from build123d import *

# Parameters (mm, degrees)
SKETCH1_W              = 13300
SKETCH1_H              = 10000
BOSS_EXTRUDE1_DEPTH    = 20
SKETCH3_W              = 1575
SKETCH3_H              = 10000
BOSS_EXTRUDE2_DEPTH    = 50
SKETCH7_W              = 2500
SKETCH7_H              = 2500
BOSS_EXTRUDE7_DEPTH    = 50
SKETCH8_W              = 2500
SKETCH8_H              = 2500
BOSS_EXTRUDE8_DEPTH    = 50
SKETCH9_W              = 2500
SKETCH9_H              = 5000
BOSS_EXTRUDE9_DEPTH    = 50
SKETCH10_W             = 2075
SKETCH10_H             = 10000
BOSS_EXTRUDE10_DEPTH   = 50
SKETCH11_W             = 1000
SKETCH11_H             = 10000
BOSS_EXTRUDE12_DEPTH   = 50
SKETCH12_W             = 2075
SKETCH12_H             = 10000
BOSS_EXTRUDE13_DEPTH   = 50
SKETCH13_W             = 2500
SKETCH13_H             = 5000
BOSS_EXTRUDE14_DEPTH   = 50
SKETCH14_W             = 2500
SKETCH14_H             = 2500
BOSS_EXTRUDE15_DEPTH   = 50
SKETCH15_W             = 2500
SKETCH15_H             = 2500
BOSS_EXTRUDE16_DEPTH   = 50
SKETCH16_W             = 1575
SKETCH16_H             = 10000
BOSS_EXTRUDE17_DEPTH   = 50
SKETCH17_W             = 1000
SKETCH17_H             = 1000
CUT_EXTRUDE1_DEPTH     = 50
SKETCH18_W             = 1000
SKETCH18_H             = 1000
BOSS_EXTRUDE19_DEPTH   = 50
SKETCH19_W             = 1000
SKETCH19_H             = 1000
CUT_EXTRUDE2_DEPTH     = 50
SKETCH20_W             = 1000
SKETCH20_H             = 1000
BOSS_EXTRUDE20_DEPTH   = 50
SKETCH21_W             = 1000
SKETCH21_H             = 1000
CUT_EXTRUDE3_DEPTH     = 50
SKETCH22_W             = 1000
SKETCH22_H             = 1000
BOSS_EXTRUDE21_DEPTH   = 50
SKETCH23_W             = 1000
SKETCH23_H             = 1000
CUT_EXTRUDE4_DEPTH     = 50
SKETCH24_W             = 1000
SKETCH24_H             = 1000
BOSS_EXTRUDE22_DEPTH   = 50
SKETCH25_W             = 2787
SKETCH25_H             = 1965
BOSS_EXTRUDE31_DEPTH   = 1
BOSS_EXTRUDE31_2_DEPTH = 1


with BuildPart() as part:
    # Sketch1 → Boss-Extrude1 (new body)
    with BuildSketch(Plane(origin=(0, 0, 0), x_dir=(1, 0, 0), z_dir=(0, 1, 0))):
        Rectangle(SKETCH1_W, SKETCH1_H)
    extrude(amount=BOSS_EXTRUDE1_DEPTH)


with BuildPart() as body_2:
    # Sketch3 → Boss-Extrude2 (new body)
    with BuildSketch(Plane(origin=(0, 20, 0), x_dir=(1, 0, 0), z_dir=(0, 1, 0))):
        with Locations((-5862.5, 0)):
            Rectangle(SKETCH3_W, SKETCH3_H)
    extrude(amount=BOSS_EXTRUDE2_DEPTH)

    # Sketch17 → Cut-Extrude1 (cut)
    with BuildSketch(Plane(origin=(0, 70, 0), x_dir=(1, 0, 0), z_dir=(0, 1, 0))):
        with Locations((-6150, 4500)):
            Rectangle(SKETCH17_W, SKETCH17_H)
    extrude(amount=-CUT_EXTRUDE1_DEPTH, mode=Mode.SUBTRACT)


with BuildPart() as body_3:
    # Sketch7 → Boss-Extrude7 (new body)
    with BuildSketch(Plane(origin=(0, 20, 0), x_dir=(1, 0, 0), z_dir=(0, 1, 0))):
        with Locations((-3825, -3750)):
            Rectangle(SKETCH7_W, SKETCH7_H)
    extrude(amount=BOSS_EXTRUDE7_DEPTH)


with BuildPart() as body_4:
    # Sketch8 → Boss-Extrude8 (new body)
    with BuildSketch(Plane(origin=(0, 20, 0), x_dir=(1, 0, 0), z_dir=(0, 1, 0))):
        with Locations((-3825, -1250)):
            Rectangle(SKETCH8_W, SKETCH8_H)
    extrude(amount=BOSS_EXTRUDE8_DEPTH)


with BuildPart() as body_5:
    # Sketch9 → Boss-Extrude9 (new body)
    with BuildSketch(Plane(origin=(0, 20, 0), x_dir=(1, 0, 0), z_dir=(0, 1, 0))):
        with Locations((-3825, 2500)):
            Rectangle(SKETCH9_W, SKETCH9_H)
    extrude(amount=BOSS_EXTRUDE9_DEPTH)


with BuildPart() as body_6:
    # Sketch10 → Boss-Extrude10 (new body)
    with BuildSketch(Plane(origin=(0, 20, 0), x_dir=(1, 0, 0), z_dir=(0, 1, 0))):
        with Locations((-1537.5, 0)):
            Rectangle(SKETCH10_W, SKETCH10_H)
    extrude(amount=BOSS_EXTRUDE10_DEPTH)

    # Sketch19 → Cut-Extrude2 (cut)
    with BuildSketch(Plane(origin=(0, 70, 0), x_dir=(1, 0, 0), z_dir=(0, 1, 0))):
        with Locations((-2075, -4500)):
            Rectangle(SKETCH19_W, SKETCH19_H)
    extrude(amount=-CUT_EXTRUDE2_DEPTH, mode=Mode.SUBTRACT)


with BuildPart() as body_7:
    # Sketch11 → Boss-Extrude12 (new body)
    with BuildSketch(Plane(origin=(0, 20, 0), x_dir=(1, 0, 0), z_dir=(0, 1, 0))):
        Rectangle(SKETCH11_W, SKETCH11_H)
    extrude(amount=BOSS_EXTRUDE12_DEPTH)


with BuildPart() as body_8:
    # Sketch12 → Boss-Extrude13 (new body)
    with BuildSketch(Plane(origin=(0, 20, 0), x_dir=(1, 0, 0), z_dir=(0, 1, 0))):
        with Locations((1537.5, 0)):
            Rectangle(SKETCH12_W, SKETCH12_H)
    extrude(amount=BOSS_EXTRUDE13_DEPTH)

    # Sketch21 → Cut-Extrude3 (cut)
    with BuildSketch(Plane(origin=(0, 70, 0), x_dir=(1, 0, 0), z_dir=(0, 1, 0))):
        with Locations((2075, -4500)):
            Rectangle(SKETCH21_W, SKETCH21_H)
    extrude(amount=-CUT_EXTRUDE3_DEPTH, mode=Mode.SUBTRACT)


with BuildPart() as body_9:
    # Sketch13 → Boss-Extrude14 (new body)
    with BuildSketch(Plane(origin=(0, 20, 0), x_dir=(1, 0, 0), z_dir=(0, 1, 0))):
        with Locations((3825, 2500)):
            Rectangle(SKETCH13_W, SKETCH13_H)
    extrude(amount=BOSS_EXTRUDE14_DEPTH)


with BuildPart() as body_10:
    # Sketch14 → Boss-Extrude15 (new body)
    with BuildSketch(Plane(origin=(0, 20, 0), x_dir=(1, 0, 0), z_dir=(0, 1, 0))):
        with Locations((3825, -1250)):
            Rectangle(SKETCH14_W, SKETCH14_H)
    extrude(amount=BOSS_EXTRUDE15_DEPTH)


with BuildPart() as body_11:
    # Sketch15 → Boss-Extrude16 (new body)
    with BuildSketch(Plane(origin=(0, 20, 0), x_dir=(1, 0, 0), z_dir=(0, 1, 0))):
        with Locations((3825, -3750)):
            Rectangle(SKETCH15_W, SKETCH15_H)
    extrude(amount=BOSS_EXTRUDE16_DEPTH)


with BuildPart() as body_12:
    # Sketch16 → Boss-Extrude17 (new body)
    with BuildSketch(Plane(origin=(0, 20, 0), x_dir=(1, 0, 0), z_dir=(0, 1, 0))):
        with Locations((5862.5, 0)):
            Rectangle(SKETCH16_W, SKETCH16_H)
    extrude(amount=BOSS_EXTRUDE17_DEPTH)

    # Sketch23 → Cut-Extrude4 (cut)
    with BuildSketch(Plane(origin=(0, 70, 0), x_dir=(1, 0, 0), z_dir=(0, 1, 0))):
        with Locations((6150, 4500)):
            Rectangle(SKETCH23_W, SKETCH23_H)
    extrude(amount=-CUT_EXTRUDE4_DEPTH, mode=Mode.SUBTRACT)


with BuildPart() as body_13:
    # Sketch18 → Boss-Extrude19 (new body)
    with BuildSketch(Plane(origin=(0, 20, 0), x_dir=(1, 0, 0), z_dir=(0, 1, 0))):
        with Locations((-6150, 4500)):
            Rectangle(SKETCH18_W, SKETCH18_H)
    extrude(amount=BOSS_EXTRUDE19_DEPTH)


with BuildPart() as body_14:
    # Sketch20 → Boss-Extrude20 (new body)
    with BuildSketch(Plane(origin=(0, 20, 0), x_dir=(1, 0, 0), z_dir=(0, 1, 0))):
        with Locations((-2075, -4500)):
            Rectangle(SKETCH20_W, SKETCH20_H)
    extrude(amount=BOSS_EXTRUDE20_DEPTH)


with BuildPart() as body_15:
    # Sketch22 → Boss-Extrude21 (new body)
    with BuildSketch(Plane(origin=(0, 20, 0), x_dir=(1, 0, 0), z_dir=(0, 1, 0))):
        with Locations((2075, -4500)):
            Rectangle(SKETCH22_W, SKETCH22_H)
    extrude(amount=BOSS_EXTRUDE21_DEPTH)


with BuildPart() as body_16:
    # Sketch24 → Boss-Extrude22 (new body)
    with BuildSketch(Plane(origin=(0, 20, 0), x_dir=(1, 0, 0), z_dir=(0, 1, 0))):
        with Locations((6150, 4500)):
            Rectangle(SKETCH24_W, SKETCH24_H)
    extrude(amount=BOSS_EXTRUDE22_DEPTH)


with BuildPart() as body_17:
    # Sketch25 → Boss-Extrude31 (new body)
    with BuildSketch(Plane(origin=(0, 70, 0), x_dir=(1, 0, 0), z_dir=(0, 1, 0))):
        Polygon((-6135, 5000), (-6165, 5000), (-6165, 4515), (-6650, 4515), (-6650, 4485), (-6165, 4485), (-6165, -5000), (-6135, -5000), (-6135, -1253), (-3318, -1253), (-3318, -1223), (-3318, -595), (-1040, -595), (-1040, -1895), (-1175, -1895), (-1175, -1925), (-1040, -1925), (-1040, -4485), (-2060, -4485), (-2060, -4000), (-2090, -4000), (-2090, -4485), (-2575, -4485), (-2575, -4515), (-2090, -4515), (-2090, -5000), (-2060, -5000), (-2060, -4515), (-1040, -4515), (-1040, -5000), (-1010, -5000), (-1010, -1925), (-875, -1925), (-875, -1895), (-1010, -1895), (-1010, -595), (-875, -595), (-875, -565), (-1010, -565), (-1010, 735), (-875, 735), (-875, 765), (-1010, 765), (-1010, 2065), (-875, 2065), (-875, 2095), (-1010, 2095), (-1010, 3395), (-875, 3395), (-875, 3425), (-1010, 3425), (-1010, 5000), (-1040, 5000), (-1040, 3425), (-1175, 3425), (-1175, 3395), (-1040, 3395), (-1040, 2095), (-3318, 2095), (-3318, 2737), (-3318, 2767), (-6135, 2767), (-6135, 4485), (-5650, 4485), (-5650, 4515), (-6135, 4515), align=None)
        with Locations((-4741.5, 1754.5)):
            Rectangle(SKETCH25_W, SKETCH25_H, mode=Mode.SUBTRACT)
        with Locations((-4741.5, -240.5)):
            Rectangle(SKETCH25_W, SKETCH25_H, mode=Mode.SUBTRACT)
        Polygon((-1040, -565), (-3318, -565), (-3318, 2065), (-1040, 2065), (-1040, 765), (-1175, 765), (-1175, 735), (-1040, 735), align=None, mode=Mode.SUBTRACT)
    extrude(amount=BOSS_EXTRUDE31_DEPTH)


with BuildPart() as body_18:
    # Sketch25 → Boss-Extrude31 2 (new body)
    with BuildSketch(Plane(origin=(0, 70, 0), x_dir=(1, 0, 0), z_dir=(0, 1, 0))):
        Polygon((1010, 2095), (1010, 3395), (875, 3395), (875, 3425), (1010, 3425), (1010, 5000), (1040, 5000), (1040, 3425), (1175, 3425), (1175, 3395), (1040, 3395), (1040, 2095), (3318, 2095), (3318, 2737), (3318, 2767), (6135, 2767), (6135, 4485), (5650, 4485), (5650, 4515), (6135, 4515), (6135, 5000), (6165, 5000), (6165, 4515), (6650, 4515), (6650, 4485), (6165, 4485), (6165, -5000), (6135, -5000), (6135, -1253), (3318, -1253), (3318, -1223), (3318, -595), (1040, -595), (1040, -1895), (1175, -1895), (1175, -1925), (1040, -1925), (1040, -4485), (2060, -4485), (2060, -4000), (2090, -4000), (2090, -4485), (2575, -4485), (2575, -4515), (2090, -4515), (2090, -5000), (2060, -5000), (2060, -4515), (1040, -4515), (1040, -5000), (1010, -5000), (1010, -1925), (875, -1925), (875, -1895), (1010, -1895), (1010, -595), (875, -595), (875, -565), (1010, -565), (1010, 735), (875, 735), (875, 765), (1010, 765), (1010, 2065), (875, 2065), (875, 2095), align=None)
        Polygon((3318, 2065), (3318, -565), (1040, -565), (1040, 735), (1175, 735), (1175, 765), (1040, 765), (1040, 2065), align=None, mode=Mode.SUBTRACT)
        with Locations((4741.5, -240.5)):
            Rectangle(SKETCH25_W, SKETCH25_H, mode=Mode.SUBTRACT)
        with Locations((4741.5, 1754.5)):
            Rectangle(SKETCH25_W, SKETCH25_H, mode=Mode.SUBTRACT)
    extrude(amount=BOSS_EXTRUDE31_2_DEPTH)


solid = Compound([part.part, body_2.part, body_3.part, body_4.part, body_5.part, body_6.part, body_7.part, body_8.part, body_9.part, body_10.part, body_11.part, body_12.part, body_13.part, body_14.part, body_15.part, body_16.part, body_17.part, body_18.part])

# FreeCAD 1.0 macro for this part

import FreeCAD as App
import Part
import Sketcher

V = App.Vector
Q = App.Units.Quantity


def add_polygon(sketch, points):
    """Adds a closed chain of lines whose ends are joined by coincident constraints."""
    first, n = sketch.GeometryCount, len(points)
    for a, b in zip(points, points[1:] + points[:1]):
        sketch.addGeometry(Part.LineSegment(App.Vector(*a, 0), App.Vector(*b, 0)), False)
    for i in range(n):
        sketch.addConstraint(Sketcher.Constraint("Coincident", first + i, 2, first + (i + 1) % n, 1))

doc = App.newDocument("Part")
body = doc.addObject("PartDesign::Body", "Body")

# Sketch on XZ plane
sketch1 = body.newObject("Sketcher::SketchObject", "Sketch")
sketch1.AttachmentSupport = (doc.getObject("XZ_Plane"), [""])
sketch1.MapMode = "FlatFace"
add_polygon(sketch1, [(-6650, -5000), (-6650, 5000), (6650, 5000), (6650, -5000)])  # lines 0-3
sketch1.addConstraint(Sketcher.Constraint("Vertical", 0))
sketch1.addConstraint(Sketcher.Constraint("Horizontal", 1))
sketch1.addConstraint(Sketcher.Constraint("Vertical", 2))
sketch1.addConstraint(Sketcher.Constraint("Horizontal", 3))
sketch1.addConstraint(Sketcher.Constraint("Symmetric", 0, 2, 2, 2, -1, 1))
sketch1.addConstraint(Sketcher.Constraint("DistanceX", 1, 1, 1, 2, Q("13300 mm")))
sketch1.addConstraint(Sketcher.Constraint("DistanceY", 0, 1, 0, 2, Q("10000 mm")))
pad1 = body.newObject("PartDesign::Pad", "Pad")
pad1.Profile = sketch1
pad1.Length = 20
pad1.Reversed = True
body2 = doc.addObject("PartDesign::Body", "Body001")

# Sketch on XZ plane
sketch2 = body2.newObject("Sketcher::SketchObject", "Sketch001")
sketch2.AttachmentSupport = (doc.getObject("XZ_Plane001"), [""])
sketch2.MapMode = "FlatFace"
sketch2.AttachmentOffset = App.Placement(V(0, 0, -20), App.Rotation())
add_polygon(sketch2, [(-6650, -5000), (-6650, 5000), (-5075, 5000), (-5075, -5000)])  # lines 0-3
sketch2.addConstraint(Sketcher.Constraint("Vertical", 0))
sketch2.addConstraint(Sketcher.Constraint("Horizontal", 1))
sketch2.addConstraint(Sketcher.Constraint("Vertical", 2))
sketch2.addConstraint(Sketcher.Constraint("Horizontal", 3))
sketch2.addConstraint(Sketcher.Constraint("DistanceX", 1, 1, 1, 2, Q("1575 mm")))
sketch2.addConstraint(Sketcher.Constraint("DistanceY", 0, 1, 0, 2, Q("10000 mm")))
sketch2.addConstraint(Sketcher.Constraint("DistanceX", 0, 2, -1, 1, Q("6650 mm")))
sketch2.addConstraint(Sketcher.Constraint("DistanceY", -1, 1, 0, 2, Q("5000 mm")))
pad2 = body2.newObject("PartDesign::Pad", "Pad001")
pad2.Profile = sketch2
pad2.Length = 50
pad2.Reversed = True

# Sketch on XZ plane
sketch3 = body2.newObject("Sketcher::SketchObject", "Sketch002")
sketch3.AttachmentSupport = (doc.getObject("XZ_Plane001"), [""])
sketch3.MapMode = "FlatFace"
sketch3.AttachmentOffset = App.Placement(V(0, 0, -70), App.Rotation())
add_polygon(sketch3, [(-6650, -5000), (-6650, -4000), (-5650, -4000), (-5650, -5000)])  # lines 0-3
sketch3.addConstraint(Sketcher.Constraint("Vertical", 0))
sketch3.addConstraint(Sketcher.Constraint("Horizontal", 1))
sketch3.addConstraint(Sketcher.Constraint("Vertical", 2))
sketch3.addConstraint(Sketcher.Constraint("Horizontal", 3))
sketch3.addConstraint(Sketcher.Constraint("Equal", 3, 0))
sketch3.addConstraint(Sketcher.Constraint("DistanceX", 1, 1, 1, 2, Q("1000 mm")))
sketch3.addConstraint(Sketcher.Constraint("DistanceX", 0, 2, -1, 1, Q("6650 mm")))
sketch3.addConstraint(Sketcher.Constraint("DistanceY", 0, 2, -1, 1, Q("4000 mm")))
pocket1 = body2.newObject("PartDesign::Pocket", "Pocket")
pocket1.Profile = sketch3
pocket1.Length = 50
pocket1.Reversed = True
body3 = doc.addObject("PartDesign::Body", "Body002")

# Sketch on XZ plane
sketch4 = body3.newObject("Sketcher::SketchObject", "Sketch003")
sketch4.AttachmentSupport = (doc.getObject("XZ_Plane002"), [""])
sketch4.MapMode = "FlatFace"
sketch4.AttachmentOffset = App.Placement(V(0, 0, -20), App.Rotation())
add_polygon(sketch4, [(-5075, 2500), (-5075, 5000), (-2575, 5000), (-2575, 2500)])  # lines 0-3
sketch4.addConstraint(Sketcher.Constraint("Vertical", 0))
sketch4.addConstraint(Sketcher.Constraint("Horizontal", 1))
sketch4.addConstraint(Sketcher.Constraint("Vertical", 2))
sketch4.addConstraint(Sketcher.Constraint("Horizontal", 3))
sketch4.addConstraint(Sketcher.Constraint("Equal", 3, 0))
sketch4.addConstraint(Sketcher.Constraint("DistanceX", 1, 1, 1, 2, Q("2500 mm")))
sketch4.addConstraint(Sketcher.Constraint("DistanceX", 0, 2, -1, 1, Q("5075 mm")))
sketch4.addConstraint(Sketcher.Constraint("DistanceY", -1, 1, 0, 2, Q("5000 mm")))
pad3 = body3.newObject("PartDesign::Pad", "Pad002")
pad3.Profile = sketch4
pad3.Length = 50
pad3.Reversed = True
body4 = doc.addObject("PartDesign::Body", "Body003")

# Sketch on XZ plane
sketch5 = body4.newObject("Sketcher::SketchObject", "Sketch004")
sketch5.AttachmentSupport = (doc.getObject("XZ_Plane003"), [""])
sketch5.MapMode = "FlatFace"
sketch5.AttachmentOffset = App.Placement(V(0, 0, -20), App.Rotation())
add_polygon(sketch5, [(-5075, 0), (-5075, 2500), (-2575, 2500), (-2575, 0)])  # lines 0-3
sketch5.addConstraint(Sketcher.Constraint("Vertical", 0))
sketch5.addConstraint(Sketcher.Constraint("Horizontal", 1))
sketch5.addConstraint(Sketcher.Constraint("Vertical", 2))
sketch5.addConstraint(Sketcher.Constraint("Horizontal", 3))
sketch5.addConstraint(Sketcher.Constraint("PointOnObject", 2, 2, -1))
sketch5.addConstraint(Sketcher.Constraint("Equal", 3, 0))
sketch5.addConstraint(Sketcher.Constraint("DistanceX", 1, 1, 1, 2, Q("2500 mm")))
sketch5.addConstraint(Sketcher.Constraint("DistanceX", 0, 2, -1, 1, Q("5075 mm")))
pad4 = body4.newObject("PartDesign::Pad", "Pad003")
pad4.Profile = sketch5
pad4.Length = 50
pad4.Reversed = True
body5 = doc.addObject("PartDesign::Body", "Body004")

# Sketch on XZ plane
sketch6 = body5.newObject("Sketcher::SketchObject", "Sketch005")
sketch6.AttachmentSupport = (doc.getObject("XZ_Plane004"), [""])
sketch6.MapMode = "FlatFace"
sketch6.AttachmentOffset = App.Placement(V(0, 0, -20), App.Rotation())
add_polygon(sketch6, [(-5075, -5000), (-5075, 0), (-2575, 0), (-2575, -5000)])  # lines 0-3
sketch6.addConstraint(Sketcher.Constraint("Vertical", 0))
sketch6.addConstraint(Sketcher.Constraint("Horizontal", 1))
sketch6.addConstraint(Sketcher.Constraint("Vertical", 2))
sketch6.addConstraint(Sketcher.Constraint("Horizontal", 3))
sketch6.addConstraint(Sketcher.Constraint("PointOnObject", 0, 2, -1))
sketch6.addConstraint(Sketcher.Constraint("DistanceX", 1, 1, 1, 2, Q("2500 mm")))
sketch6.addConstraint(Sketcher.Constraint("DistanceY", 0, 1, 0, 2, Q("5000 mm")))
sketch6.addConstraint(Sketcher.Constraint("DistanceX", 0, 2, -1, 1, Q("5075 mm")))
pad5 = body5.newObject("PartDesign::Pad", "Pad004")
pad5.Profile = sketch6
pad5.Length = 50
pad5.Reversed = True
body6 = doc.addObject("PartDesign::Body", "Body005")

# Sketch on XZ plane
sketch7 = body6.newObject("Sketcher::SketchObject", "Sketch006")
sketch7.AttachmentSupport = (doc.getObject("XZ_Plane005"), [""])
sketch7.MapMode = "FlatFace"
sketch7.AttachmentOffset = App.Placement(V(0, 0, -20), App.Rotation())
add_polygon(sketch7, [(-2575, -5000), (-2575, 5000), (-500, 5000), (-500, -5000)])  # lines 0-3
sketch7.addConstraint(Sketcher.Constraint("Vertical", 0))
sketch7.addConstraint(Sketcher.Constraint("Horizontal", 1))
sketch7.addConstraint(Sketcher.Constraint("Vertical", 2))
sketch7.addConstraint(Sketcher.Constraint("Horizontal", 3))
sketch7.addConstraint(Sketcher.Constraint("DistanceX", 1, 1, 1, 2, Q("2075 mm")))
sketch7.addConstraint(Sketcher.Constraint("DistanceY", 0, 1, 0, 2, Q("10000 mm")))
sketch7.addConstraint(Sketcher.Constraint("DistanceX", 0, 2, -1, 1, Q("2575 mm")))
sketch7.addConstraint(Sketcher.Constraint("DistanceY", -1, 1, 0, 2, Q("5000 mm")))
pad6 = body6.newObject("PartDesign::Pad", "Pad005")
pad6.Profile = sketch7
pad6.Length = 50
pad6.Reversed = True

# Sketch on XZ plane
sketch8 = body6.newObject("Sketcher::SketchObject", "Sketch007")
sketch8.AttachmentSupport = (doc.getObject("XZ_Plane005"), [""])
sketch8.MapMode = "FlatFace"
sketch8.AttachmentOffset = App.Placement(V(0, 0, -70), App.Rotation())
add_polygon(sketch8, [(-2575, 4000), (-2575, 5000), (-1575, 5000), (-1575, 4000)])  # lines 0-3
sketch8.addConstraint(Sketcher.Constraint("Vertical", 0))
sketch8.addConstraint(Sketcher.Constraint("Horizontal", 1))
sketch8.addConstraint(Sketcher.Constraint("Vertical", 2))
sketch8.addConstraint(Sketcher.Constraint("Horizontal", 3))
sketch8.addConstraint(Sketcher.Constraint("Equal", 3, 0))
sketch8.addConstraint(Sketcher.Constraint("DistanceX", 1, 1, 1, 2, Q("1000 mm")))
sketch8.addConstraint(Sketcher.Constraint("DistanceX", 0, 2, -1, 1, Q("2575 mm")))
sketch8.addConstraint(Sketcher.Constraint("DistanceY", -1, 1, 0, 2, Q("5000 mm")))
pocket2 = body6.newObject("PartDesign::Pocket", "Pocket001")
pocket2.Profile = sketch8
pocket2.Length = 50
pocket2.Reversed = True
body7 = doc.addObject("PartDesign::Body", "Body006")

# Sketch on XZ plane
sketch9 = body7.newObject("Sketcher::SketchObject", "Sketch008")
sketch9.AttachmentSupport = (doc.getObject("XZ_Plane006"), [""])
sketch9.MapMode = "FlatFace"
sketch9.AttachmentOffset = App.Placement(V(0, 0, -20), App.Rotation())
add_polygon(sketch9, [(-500, -5000), (-500, 5000), (500, 5000), (500, -5000)])  # lines 0-3
sketch9.addConstraint(Sketcher.Constraint("Vertical", 0))
sketch9.addConstraint(Sketcher.Constraint("Horizontal", 1))
sketch9.addConstraint(Sketcher.Constraint("Vertical", 2))
sketch9.addConstraint(Sketcher.Constraint("Horizontal", 3))
sketch9.addConstraint(Sketcher.Constraint("Symmetric", 0, 2, 2, 2, -1, 1))
sketch9.addConstraint(Sketcher.Constraint("DistanceX", 1, 1, 1, 2, Q("1000 mm")))
sketch9.addConstraint(Sketcher.Constraint("DistanceY", 0, 1, 0, 2, Q("10000 mm")))
pad7 = body7.newObject("PartDesign::Pad", "Pad006")
pad7.Profile = sketch9
pad7.Length = 50
pad7.Reversed = True
body8 = doc.addObject("PartDesign::Body", "Body007")

# Sketch on XZ plane
sketch10 = body8.newObject("Sketcher::SketchObject", "Sketch009")
sketch10.AttachmentSupport = (doc.getObject("XZ_Plane007"), [""])
sketch10.MapMode = "FlatFace"
sketch10.AttachmentOffset = App.Placement(V(0, 0, -20), App.Rotation())
add_polygon(sketch10, [(500, -5000), (500, 5000), (2575, 5000), (2575, -5000)])  # lines 0-3
sketch10.addConstraint(Sketcher.Constraint("Vertical", 0))
sketch10.addConstraint(Sketcher.Constraint("Horizontal", 1))
sketch10.addConstraint(Sketcher.Constraint("Vertical", 2))
sketch10.addConstraint(Sketcher.Constraint("Horizontal", 3))
sketch10.addConstraint(Sketcher.Constraint("DistanceX", 1, 1, 1, 2, Q("2075 mm")))
sketch10.addConstraint(Sketcher.Constraint("DistanceY", 0, 1, 0, 2, Q("10000 mm")))
sketch10.addConstraint(Sketcher.Constraint("DistanceX", -1, 1, 0, 2, Q("500 mm")))
sketch10.addConstraint(Sketcher.Constraint("DistanceY", -1, 1, 0, 2, Q("5000 mm")))
pad8 = body8.newObject("PartDesign::Pad", "Pad007")
pad8.Profile = sketch10
pad8.Length = 50
pad8.Reversed = True

# Sketch on XZ plane
sketch11 = body8.newObject("Sketcher::SketchObject", "Sketch010")
sketch11.AttachmentSupport = (doc.getObject("XZ_Plane007"), [""])
sketch11.MapMode = "FlatFace"
sketch11.AttachmentOffset = App.Placement(V(0, 0, -70), App.Rotation())
add_polygon(sketch11, [(1575, 4000), (1575, 5000), (2575, 5000), (2575, 4000)])  # lines 0-3
sketch11.addConstraint(Sketcher.Constraint("Vertical", 0))
sketch11.addConstraint(Sketcher.Constraint("Horizontal", 1))
sketch11.addConstraint(Sketcher.Constraint("Vertical", 2))
sketch11.addConstraint(Sketcher.Constraint("Horizontal", 3))
sketch11.addConstraint(Sketcher.Constraint("Equal", 3, 0))
sketch11.addConstraint(Sketcher.Constraint("DistanceX", 1, 1, 1, 2, Q("1000 mm")))
sketch11.addConstraint(Sketcher.Constraint("DistanceX", -1, 1, 0, 2, Q("1575 mm")))
sketch11.addConstraint(Sketcher.Constraint("DistanceY", -1, 1, 0, 2, Q("5000 mm")))
pocket3 = body8.newObject("PartDesign::Pocket", "Pocket002")
pocket3.Profile = sketch11
pocket3.Length = 50
pocket3.Reversed = True
body9 = doc.addObject("PartDesign::Body", "Body008")

# Sketch on XZ plane
sketch12 = body9.newObject("Sketcher::SketchObject", "Sketch011")
sketch12.AttachmentSupport = (doc.getObject("XZ_Plane008"), [""])
sketch12.MapMode = "FlatFace"
sketch12.AttachmentOffset = App.Placement(V(0, 0, -20), App.Rotation())
add_polygon(sketch12, [(2575, -5000), (2575, 0), (5075, 0), (5075, -5000)])  # lines 0-3
sketch12.addConstraint(Sketcher.Constraint("Vertical", 0))
sketch12.addConstraint(Sketcher.Constraint("Horizontal", 1))
sketch12.addConstraint(Sketcher.Constraint("Vertical", 2))
sketch12.addConstraint(Sketcher.Constraint("Horizontal", 3))
sketch12.addConstraint(Sketcher.Constraint("PointOnObject", 0, 2, -1))
sketch12.addConstraint(Sketcher.Constraint("DistanceX", 1, 1, 1, 2, Q("2500 mm")))
sketch12.addConstraint(Sketcher.Constraint("DistanceY", 0, 1, 0, 2, Q("5000 mm")))
sketch12.addConstraint(Sketcher.Constraint("DistanceX", -1, 1, 0, 2, Q("2575 mm")))
pad9 = body9.newObject("PartDesign::Pad", "Pad008")
pad9.Profile = sketch12
pad9.Length = 50
pad9.Reversed = True
body10 = doc.addObject("PartDesign::Body", "Body009")

# Sketch on XZ plane
sketch13 = body10.newObject("Sketcher::SketchObject", "Sketch012")
sketch13.AttachmentSupport = (doc.getObject("XZ_Plane009"), [""])
sketch13.MapMode = "FlatFace"
sketch13.AttachmentOffset = App.Placement(V(0, 0, -20), App.Rotation())
add_polygon(sketch13, [(2575, 0), (2575, 2500), (5075, 2500), (5075, 0)])  # lines 0-3
sketch13.addConstraint(Sketcher.Constraint("Vertical", 0))
sketch13.addConstraint(Sketcher.Constraint("Horizontal", 1))
sketch13.addConstraint(Sketcher.Constraint("Vertical", 2))
sketch13.addConstraint(Sketcher.Constraint("Horizontal", 3))
sketch13.addConstraint(Sketcher.Constraint("PointOnObject", 2, 2, -1))
sketch13.addConstraint(Sketcher.Constraint("Equal", 3, 0))
sketch13.addConstraint(Sketcher.Constraint("DistanceX", 1, 1, 1, 2, Q("2500 mm")))
sketch13.addConstraint(Sketcher.Constraint("DistanceX", -1, 1, 0, 2, Q("2575 mm")))
pad10 = body10.newObject("PartDesign::Pad", "Pad009")
pad10.Profile = sketch13
pad10.Length = 50
pad10.Reversed = True
body11 = doc.addObject("PartDesign::Body", "Body010")

# Sketch on XZ plane
sketch14 = body11.newObject("Sketcher::SketchObject", "Sketch013")
sketch14.AttachmentSupport = (doc.getObject("XZ_Plane010"), [""])
sketch14.MapMode = "FlatFace"
sketch14.AttachmentOffset = App.Placement(V(0, 0, -20), App.Rotation())
add_polygon(sketch14, [(2575, 2500), (2575, 5000), (5075, 5000), (5075, 2500)])  # lines 0-3
sketch14.addConstraint(Sketcher.Constraint("Vertical", 0))
sketch14.addConstraint(Sketcher.Constraint("Horizontal", 1))
sketch14.addConstraint(Sketcher.Constraint("Vertical", 2))
sketch14.addConstraint(Sketcher.Constraint("Horizontal", 3))
sketch14.addConstraint(Sketcher.Constraint("Equal", 3, 0))
sketch14.addConstraint(Sketcher.Constraint("DistanceX", 1, 1, 1, 2, Q("2500 mm")))
sketch14.addConstraint(Sketcher.Constraint("DistanceX", -1, 1, 0, 2, Q("2575 mm")))
sketch14.addConstraint(Sketcher.Constraint("DistanceY", -1, 1, 0, 2, Q("5000 mm")))
pad11 = body11.newObject("PartDesign::Pad", "Pad010")
pad11.Profile = sketch14
pad11.Length = 50
pad11.Reversed = True
body12 = doc.addObject("PartDesign::Body", "Body011")

# Sketch on XZ plane
sketch15 = body12.newObject("Sketcher::SketchObject", "Sketch014")
sketch15.AttachmentSupport = (doc.getObject("XZ_Plane011"), [""])
sketch15.MapMode = "FlatFace"
sketch15.AttachmentOffset = App.Placement(V(0, 0, -20), App.Rotation())
add_polygon(sketch15, [(5075, -5000), (5075, 5000), (6650, 5000), (6650, -5000)])  # lines 0-3
sketch15.addConstraint(Sketcher.Constraint("Vertical", 0))
sketch15.addConstraint(Sketcher.Constraint("Horizontal", 1))
sketch15.addConstraint(Sketcher.Constraint("Vertical", 2))
sketch15.addConstraint(Sketcher.Constraint("Horizontal", 3))
sketch15.addConstraint(Sketcher.Constraint("DistanceX", 1, 1, 1, 2, Q("1575 mm")))
sketch15.addConstraint(Sketcher.Constraint("DistanceY", 0, 1, 0, 2, Q("10000 mm")))
sketch15.addConstraint(Sketcher.Constraint("DistanceX", -1, 1, 0, 2, Q("5075 mm")))
sketch15.addConstraint(Sketcher.Constraint("DistanceY", -1, 1, 0, 2, Q("5000 mm")))
pad12 = body12.newObject("PartDesign::Pad", "Pad011")
pad12.Profile = sketch15
pad12.Length = 50
pad12.Reversed = True

# Sketch on XZ plane
sketch16 = body12.newObject("Sketcher::SketchObject", "Sketch015")
sketch16.AttachmentSupport = (doc.getObject("XZ_Plane011"), [""])
sketch16.MapMode = "FlatFace"
sketch16.AttachmentOffset = App.Placement(V(0, 0, -70), App.Rotation())
add_polygon(sketch16, [(5650, -5000), (5650, -4000), (6650, -4000), (6650, -5000)])  # lines 0-3
sketch16.addConstraint(Sketcher.Constraint("Vertical", 0))
sketch16.addConstraint(Sketcher.Constraint("Horizontal", 1))
sketch16.addConstraint(Sketcher.Constraint("Vertical", 2))
sketch16.addConstraint(Sketcher.Constraint("Horizontal", 3))
sketch16.addConstraint(Sketcher.Constraint("Equal", 3, 0))
sketch16.addConstraint(Sketcher.Constraint("DistanceX", 1, 1, 1, 2, Q("1000 mm")))
sketch16.addConstraint(Sketcher.Constraint("DistanceX", -1, 1, 0, 2, Q("5650 mm")))
sketch16.addConstraint(Sketcher.Constraint("DistanceY", 0, 2, -1, 1, Q("4000 mm")))
pocket4 = body12.newObject("PartDesign::Pocket", "Pocket003")
pocket4.Profile = sketch16
pocket4.Length = 50
pocket4.Reversed = True
body13 = doc.addObject("PartDesign::Body", "Body012")

# Sketch on XZ plane
sketch17 = body13.newObject("Sketcher::SketchObject", "Sketch016")
sketch17.AttachmentSupport = (doc.getObject("XZ_Plane012"), [""])
sketch17.MapMode = "FlatFace"
sketch17.AttachmentOffset = App.Placement(V(0, 0, -20), App.Rotation())
add_polygon(sketch17, [(-6650, -5000), (-6650, -4000), (-5650, -4000), (-5650, -5000)])  # lines 0-3
sketch17.addConstraint(Sketcher.Constraint("Vertical", 0))
sketch17.addConstraint(Sketcher.Constraint("Horizontal", 1))
sketch17.addConstraint(Sketcher.Constraint("Vertical", 2))
sketch17.addConstraint(Sketcher.Constraint("Horizontal", 3))
sketch17.addConstraint(Sketcher.Constraint("Equal", 3, 0))
sketch17.addConstraint(Sketcher.Constraint("DistanceX", 1, 1, 1, 2, Q("1000 mm")))
sketch17.addConstraint(Sketcher.Constraint("DistanceX", 0, 2, -1, 1, Q("6650 mm")))
sketch17.addConstraint(Sketcher.Constraint("DistanceY", 0, 2, -1, 1, Q("4000 mm")))
pad13 = body13.newObject("PartDesign::Pad", "Pad012")
pad13.Profile = sketch17
pad13.Length = 50
pad13.Reversed = True
body14 = doc.addObject("PartDesign::Body", "Body013")

# Sketch on XZ plane
sketch18 = body14.newObject("Sketcher::SketchObject", "Sketch017")
sketch18.AttachmentSupport = (doc.getObject("XZ_Plane013"), [""])
sketch18.MapMode = "FlatFace"
sketch18.AttachmentOffset = App.Placement(V(0, 0, -20), App.Rotation())
add_polygon(sketch18, [(-2575, 4000), (-2575, 5000), (-1575, 5000), (-1575, 4000)])  # lines 0-3
sketch18.addConstraint(Sketcher.Constraint("Vertical", 0))
sketch18.addConstraint(Sketcher.Constraint("Horizontal", 1))
sketch18.addConstraint(Sketcher.Constraint("Vertical", 2))
sketch18.addConstraint(Sketcher.Constraint("Horizontal", 3))
sketch18.addConstraint(Sketcher.Constraint("Equal", 3, 0))
sketch18.addConstraint(Sketcher.Constraint("DistanceX", 1, 1, 1, 2, Q("1000 mm")))
sketch18.addConstraint(Sketcher.Constraint("DistanceX", 0, 2, -1, 1, Q("2575 mm")))
sketch18.addConstraint(Sketcher.Constraint("DistanceY", -1, 1, 0, 2, Q("5000 mm")))
pad14 = body14.newObject("PartDesign::Pad", "Pad013")
pad14.Profile = sketch18
pad14.Length = 50
pad14.Reversed = True
body15 = doc.addObject("PartDesign::Body", "Body014")

# Sketch on XZ plane
sketch19 = body15.newObject("Sketcher::SketchObject", "Sketch018")
sketch19.AttachmentSupport = (doc.getObject("XZ_Plane014"), [""])
sketch19.MapMode = "FlatFace"
sketch19.AttachmentOffset = App.Placement(V(0, 0, -20), App.Rotation())
add_polygon(sketch19, [(1575, 4000), (1575, 5000), (2575, 5000), (2575, 4000)])  # lines 0-3
sketch19.addConstraint(Sketcher.Constraint("Vertical", 0))
sketch19.addConstraint(Sketcher.Constraint("Horizontal", 1))
sketch19.addConstraint(Sketcher.Constraint("Vertical", 2))
sketch19.addConstraint(Sketcher.Constraint("Horizontal", 3))
sketch19.addConstraint(Sketcher.Constraint("Equal", 3, 0))
sketch19.addConstraint(Sketcher.Constraint("DistanceX", 1, 1, 1, 2, Q("1000 mm")))
sketch19.addConstraint(Sketcher.Constraint("DistanceX", -1, 1, 0, 2, Q("1575 mm")))
sketch19.addConstraint(Sketcher.Constraint("DistanceY", -1, 1, 0, 2, Q("5000 mm")))
pad15 = body15.newObject("PartDesign::Pad", "Pad014")
pad15.Profile = sketch19
pad15.Length = 50
pad15.Reversed = True
body16 = doc.addObject("PartDesign::Body", "Body015")

# Sketch on XZ plane
sketch20 = body16.newObject("Sketcher::SketchObject", "Sketch019")
sketch20.AttachmentSupport = (doc.getObject("XZ_Plane015"), [""])
sketch20.MapMode = "FlatFace"
sketch20.AttachmentOffset = App.Placement(V(0, 0, -20), App.Rotation())
add_polygon(sketch20, [(5650, -5000), (5650, -4000), (6650, -4000), (6650, -5000)])  # lines 0-3
sketch20.addConstraint(Sketcher.Constraint("Vertical", 0))
sketch20.addConstraint(Sketcher.Constraint("Horizontal", 1))
sketch20.addConstraint(Sketcher.Constraint("Vertical", 2))
sketch20.addConstraint(Sketcher.Constraint("Horizontal", 3))
sketch20.addConstraint(Sketcher.Constraint("Equal", 3, 0))
sketch20.addConstraint(Sketcher.Constraint("DistanceX", 1, 1, 1, 2, Q("1000 mm")))
sketch20.addConstraint(Sketcher.Constraint("DistanceX", -1, 1, 0, 2, Q("5650 mm")))
sketch20.addConstraint(Sketcher.Constraint("DistanceY", 0, 2, -1, 1, Q("4000 mm")))
pad16 = body16.newObject("PartDesign::Pad", "Pad015")
pad16.Profile = sketch20
pad16.Length = 50
pad16.Reversed = True
body17 = doc.addObject("PartDesign::Body", "Body016")

# Sketch on XZ plane
sketch21 = body17.newObject("Sketcher::SketchObject", "Sketch020")
sketch21.AttachmentSupport = (doc.getObject("XZ_Plane016"), [""])
sketch21.MapMode = "FlatFace"
sketch21.AttachmentOffset = App.Placement(V(0, 0, -70), App.Rotation())
add_polygon(sketch21, [(-6135, -5000), (-6165, -5000), (-6165, -4515), (-6650, -4515), (-6650, -4485), (-6165, -4485), (-6165, 5000), (-6135, 5000), (-6135, 1253), (-3318, 1253), (-3318, 595), (-1040, 595), (-1040, 1895), (-1175, 1895), (-1175, 1925), (-1040, 1925), (-1040, 4485), (-2060, 4485), (-2060, 4000), (-2090, 4000), (-2090, 4485), (-2575, 4485), (-2575, 4515), (-2090, 4515), (-2090, 5000), (-2060, 5000), (-2060, 4515), (-1040, 4515), (-1040, 5000), (-1010, 5000), (-1010, 1925), (-875, 1925), (-875, 1895), (-1010, 1895), (-1010, 595), (-875, 595), (-875, 565), (-1010, 565), (-1010, -735), (-875, -735), (-875, -765), (-1010, -765), (-1010, -2065), (-875, -2065), (-875, -2095), (-1010, -2095), (-1010, -3395), (-875, -3395), (-875, -3425), (-1010, -3425), (-1010, -5000), (-1040, -5000), (-1040, -3425), (-1175, -3425), (-1175, -3395), (-1040, -3395), (-1040, -2095), (-3318, -2095), (-3318, -2767), (-6135, -2767), (-6135, -4485), (-5650, -4485), (-5650, -4515), (-6135, -4515)])  # lines 0-63
add_polygon(sketch21, [(-3348, 1223), (-6135, 1223), (-6135, -742), (-3348, -742)])  # lines 64-67
add_polygon(sketch21, [(-1040, -735), (-1040, 565), (-3318, 565), (-3318, -2065), (-1040, -2065), (-1040, -765), (-1175, -765), (-1175, -735)])  # lines 68-75
add_polygon(sketch21, [(-3348, -772), (-6135, -772), (-6135, -2737), (-3348, -2737)])  # lines 76-79
sketch21.addConstraint(Sketcher.Constraint("Horizontal", 0))
sketch21.addConstraint(Sketcher.Constraint("Vertical", 1))
sketch21.addConstraint(Sketcher.Constraint("Horizontal", 2))
sketch21.addConstraint(Sketcher.Constraint("Vertical", 3))
sketch21.addConstraint(Sketcher.Constraint("Horizontal", 4))
sketch21.addConstraint(Sketcher.Constraint("Vertical", 5))
sketch21.addConstraint(Sketcher.Constraint("Horizontal", 6))
sketch21.addConstraint(Sketcher.Constraint("Vertical", 7))
sketch21.addConstraint(Sketcher.Constraint("Horizontal", 8))
sketch21.addConstraint(Sketcher.Constraint("Vertical", 9))
sketch21.addConstraint(Sketcher.Constraint("Horizontal", 10))
sketch21.addConstraint(Sketcher.Constraint("Vertical", 11))
sketch21.addConstraint(Sketcher.Constraint("Horizontal", 12))
sketch21.addConstraint(Sketcher.Constraint("Vertical", 13))
sketch21.addConstraint(Sketcher.Constraint("Horizontal", 14))
sketch21.addConstraint(Sketcher.Constraint("Vertical", 15))
sketch21.addConstraint(Sketcher.Constraint("Horizontal", 16))
sketch21.addConstraint(Sketcher.Constraint("Vertical", 17))
sketch21.addConstraint(Sketcher.Constraint("Horizontal", 18))
sketch21.addConstraint(Sketcher.Constraint("Vertical", 19))
sketch21.addConstraint(Sketcher.Constraint("Horizontal", 20))
sketch21.addConstraint(Sketcher.Constraint("Vertical", 21))
sketch21.addConstraint(Sketcher.Constraint("Horizontal", 22))
sketch21.addConstraint(Sketcher.Constraint("Vertical", 23))
sketch21.addConstraint(Sketcher.Constraint("Horizontal", 24))
sketch21.addConstraint(Sketcher.Constraint("Vertical", 25))
sketch21.addConstraint(Sketcher.Constraint("Horizontal", 26))
sketch21.addConstraint(Sketcher.Constraint("Vertical", 27))
sketch21.addConstraint(Sketcher.Constraint("Horizontal", 28))
sketch21.addConstraint(Sketcher.Constraint("Vertical", 29))
sketch21.addConstraint(Sketcher.Constraint("Horizontal", 30))
sketch21.addConstraint(Sketcher.Constraint("Vertical", 31))
sketch21.addConstraint(Sketcher.Constraint("Horizontal", 32))
sketch21.addConstraint(Sketcher.Constraint("Vertical", 33))
sketch21.addConstraint(Sketcher.Constraint("Horizontal", 34))
sketch21.addConstraint(Sketcher.Constraint("Vertical", 35))
sketch21.addConstraint(Sketcher.Constraint("Horizontal", 36))
sketch21.addConstraint(Sketcher.Constraint("Vertical", 37))
sketch21.addConstraint(Sketcher.Constraint("Horizontal", 38))
sketch21.addConstraint(Sketcher.Constraint("Vertical", 39))
sketch21.addConstraint(Sketcher.Constraint("Horizontal", 40))
sketch21.addConstraint(Sketcher.Constraint("Vertical", 41))
sketch21.addConstraint(Sketcher.Constraint("Horizontal", 42))
sketch21.addConstraint(Sketcher.Constraint("Vertical", 43))
sketch21.addConstraint(Sketcher.Constraint("Horizontal", 44))
sketch21.addConstraint(Sketcher.Constraint("Vertical", 45))
sketch21.addConstraint(Sketcher.Constraint("Horizontal", 46))
sketch21.addConstraint(Sketcher.Constraint("Vertical", 47))
sketch21.addConstraint(Sketcher.Constraint("Horizontal", 48))
sketch21.addConstraint(Sketcher.Constraint("Vertical", 49))
sketch21.addConstraint(Sketcher.Constraint("Horizontal", 50))
sketch21.addConstraint(Sketcher.Constraint("Vertical", 51))
sketch21.addConstraint(Sketcher.Constraint("Horizontal", 52))
sketch21.addConstraint(Sketcher.Constraint("Vertical", 53))
sketch21.addConstraint(Sketcher.Constraint("Horizontal", 54))
sketch21.addConstraint(Sketcher.Constraint("Vertical", 55))
sketch21.addConstraint(Sketcher.Constraint("Horizontal", 56))
sketch21.addConstraint(Sketcher.Constraint("Vertical", 57))
sketch21.addConstraint(Sketcher.Constraint("Horizontal", 58))
sketch21.addConstraint(Sketcher.Constraint("Vertical", 59))
sketch21.addConstraint(Sketcher.Constraint("Horizontal", 60))
sketch21.addConstraint(Sketcher.Constraint("Vertical", 61))
sketch21.addConstraint(Sketcher.Constraint("Horizontal", 62))
sketch21.addConstraint(Sketcher.Constraint("Vertical", 63))
sketch21.addConstraint(Sketcher.Constraint("Horizontal", 64))
sketch21.addConstraint(Sketcher.Constraint("Vertical", 65))
sketch21.addConstraint(Sketcher.Constraint("Horizontal", 66))
sketch21.addConstraint(Sketcher.Constraint("Vertical", 67))
sketch21.addConstraint(Sketcher.Constraint("Vertical", 68))
sketch21.addConstraint(Sketcher.Constraint("Horizontal", 69))
sketch21.addConstraint(Sketcher.Constraint("Vertical", 70))
sketch21.addConstraint(Sketcher.Constraint("Horizontal", 71))
sketch21.addConstraint(Sketcher.Constraint("Vertical", 72))
sketch21.addConstraint(Sketcher.Constraint("Horizontal", 73))
sketch21.addConstraint(Sketcher.Constraint("Vertical", 74))
sketch21.addConstraint(Sketcher.Constraint("Horizontal", 75))
sketch21.addConstraint(Sketcher.Constraint("Horizontal", 76))
sketch21.addConstraint(Sketcher.Constraint("Vertical", 77))
sketch21.addConstraint(Sketcher.Constraint("Horizontal", 78))
sketch21.addConstraint(Sketcher.Constraint("Vertical", 79))
sketch21.addConstraint(Sketcher.Constraint("Symmetric", 0, 2, 5, 2, -1))
sketch21.addConstraint(Sketcher.Constraint("Symmetric", 28, 2, 49, 2, -1))
sketch21.addConstraint(Sketcher.Constraint("Horizontal", 16, 2, 19, 2))
sketch21.addConstraint(Sketcher.Constraint("Horizontal", 6, 2, 23, 2))
sketch21.addConstraint(Sketcher.Constraint("Horizontal", 22, 2, 25, 2))
sketch21.addConstraint(Sketcher.Constraint("Horizontal", 24, 2, 27, 2))
sketch21.addConstraint(Sketcher.Constraint("Horizontal", 14, 2, 29, 2))
sketch21.addConstraint(Sketcher.Constraint("Horizontal", 12, 2, 31, 2))
sketch21.addConstraint(Sketcher.Constraint("Horizontal", 10, 2, 33, 2))
sketch21.addConstraint(Sketcher.Constraint("Horizontal", 48, 2, 51, 2))
sketch21.addConstraint(Sketcher.Constraint("Horizontal", 46, 2, 53, 2))
sketch21.addConstraint(Sketcher.Constraint("Horizontal", 44, 2, 55, 2))
sketch21.addConstraint(Sketcher.Constraint("Horizontal", 4, 2, 59, 2))
sketch21.addConstraint(Sketcher.Constraint("Horizontal", 2, 2, 61, 2))
sketch21.addConstraint(Sketcher.Constraint("Horizontal", 36, 2, 68, 2))
sketch21.addConstraint(Sketcher.Constraint("Horizontal", 42, 2, 70, 2))
sketch21.addConstraint(Sketcher.Constraint("Horizontal", 40, 2, 72, 2))
sketch21.addConstraint(Sketcher.Constraint("Horizontal", 38, 2, 74, 2))
sketch21.addConstraint(Sketcher.Constraint("Vertical", 11, 2, 14, 2))
sketch21.addConstraint(Sketcher.Constraint("Vertical", 19, 2, 22, 2))
sketch21.addConstraint(Sketcher.Constraint("Vertical", 17, 2, 24, 2))
sketch21.addConstraint(Sketcher.Constraint("Vertical", 15, 2, 26, 2))
sketch21.addConstraint(Sketcher.Constraint("Vertical", 29, 2, 32, 2))
sketch21.addConstraint(Sketcher.Constraint("Vertical", 31, 2, 34, 2))
sketch21.addConstraint(Sketcher.Constraint("Vertical", 33, 2, 36, 2))
sketch21.addConstraint(Sketcher.Constraint("Vertical", 35, 2, 38, 2))
sketch21.addConstraint(Sketcher.Constraint("Vertical", 37, 2, 40, 2))
sketch21.addConstraint(Sketcher.Constraint("Vertical", 39, 2, 42, 2))
sketch21.addConstraint(Sketcher.Constraint("Vertical", 41, 2, 44, 2))
sketch21.addConstraint(Sketcher.Constraint("Vertical", 43, 2, 46, 2))
sketch21.addConstraint(Sketcher.Constraint("Vertical", 27, 2, 50, 2))
sketch21.addConstraint(Sketcher.Constraint("Vertical", 13, 2, 52, 2))
sketch21.addConstraint(Sketcher.Constraint("Vertical", 51, 2, 54, 2))
sketch21.addConstraint(Sketcher.Constraint("Vertical", 9, 2, 56, 2))
sketch21.addConstraint(Sketcher.Constraint("Vertical", 7, 2, 58, 2))
sketch21.addConstraint(Sketcher.Constraint("Vertical", 59, 2, 62, 2))
sketch21.addConstraint(Sketcher.Constraint("Vertical", 63, 2, 64, 2))
sketch21.addConstraint(Sketcher.Constraint("Vertical", 55, 2, 68, 2))
sketch21.addConstraint(Sketcher.Constraint("Vertical", 57, 2, 69, 2))
sketch21.addConstraint(Sketcher.Constraint("Vertical", 68, 2, 71, 2))
sketch21.addConstraint(Sketcher.Constraint("Vertical", 53, 2, 73, 2))
sketch21.addConstraint(Sketcher.Constraint("Vertical", 65, 2, 76, 2))
sketch21.addConstraint(Sketcher.Constraint("Vertical", 67, 2, 78, 2))
sketch21.addConstraint(Sketcher.Constraint("Equal", 6, 18))
sketch21.addConstraint(Sketcher.Constraint("Equal", 4, 20))
sketch21.addConstraint(Sketcher.Constraint("Equal", 24, 28))
sketch21.addConstraint(Sketcher.Constraint("Equal", 14, 30))
sketch21.addConstraint(Sketcher.Constraint("Equal", 22, 60))
sketch21.addConstraint(Sketcher.Constraint("Equal", 62, 1))
sketch21.addConstraint(Sketcher.Constraint("Equal", 50, 3))
sketch21.addConstraint(Sketcher.Constraint("Equal", 3, 13))
sketch21.addConstraint(Sketcher.Constraint("Equal", 1, 17))
sketch21.addConstraint(Sketcher.Constraint("Equal", 13, 21))
sketch21.addConstraint(Sketcher.Constraint("Equal", 19, 23))
sketch21.addConstraint(Sketcher.Constraint("Equal", 31, 35))
sketch21.addConstraint(Sketcher.Constraint("Equal", 33, 37))
sketch21.addConstraint(Sketcher.Constraint("Equal", 35, 39))
sketch21.addConstraint(Sketcher.Constraint("Equal", 37, 41))
sketch21.addConstraint(Sketcher.Constraint("Equal", 39, 43))
sketch21.addConstraint(Sketcher.Constraint("Equal", 41, 45))
sketch21.addConstraint(Sketcher.Constraint("Equal", 43, 47))
sketch21.addConstraint(Sketcher.Constraint("Equal", 67, 77))
sketch21.addConstraint(Sketcher.Constraint("DistanceX", 0, 2, 0, 1, Q("30 mm")))
sketch21.addConstraint(Sketcher.Constraint("DistanceX", 2, 2, 2, 1, Q("485 mm")))
sketch21.addConstraint(Sketcher.Constraint("DistanceX", 8, 1, 8, 2, Q("2817 mm")))
sketch21.addConstraint(Sketcher.Constraint("DistanceX", 10, 1, 10, 2, Q("2278 mm")))
sketch21.addConstraint(Sketcher.Constraint("DistanceX", 12, 2, 12, 1, Q("135 mm")))
sketch21.addConstraint(Sketcher.Constraint("DistanceX", 16, 2, 16, 1, Q("1020 mm")))
sketch21.addConstraint(Sketcher.Constraint("DistanceX", 64, 2, 64, 1, Q("2787 mm")))
sketch21.addConstraint(Sketcher.Constraint("DistanceY", 5, 1, 5, 2, Q("9485 mm")))
sketch21.addConstraint(Sketcher.Constraint("DistanceY", 7, 2, 7, 1, Q("3747 mm")))
sketch21.addConstraint(Sketcher.Constraint("DistanceY", 9, 2, 9, 1, Q("658 mm")))
sketch21.addConstraint(Sketcher.Constraint("DistanceY", 11, 1, 11, 2, Q("1300 mm")))
sketch21.addConstraint(Sketcher.Constraint("DistanceY", 57, 2, 57, 1, Q("672 mm")))
sketch21.addConstraint(Sketcher.Constraint("DistanceY", 65, 2, 65, 1, Q("1965 mm")))
sketch21.addConstraint(Sketcher.Constraint("DistanceX", 0, 2, -1, 1, Q("6165 mm")))
sketch21.addConstraint(Sketcher.Constraint("DistanceY", -1, 1, 64, 2, Q("1223 mm")))
sketch21.addConstraint(Sketcher.Constraint("DistanceY", 76, 2, -1, 1, Q("772 mm")))
pad17 = body17.newObject("PartDesign::Pad", "Pad016")
pad17.Profile = sketch21
pad17.Length = 1
pad17.Reversed = True
body18 = doc.addObject("PartDesign::Body", "Body017")

# Sketch on XZ plane
sketch22 = body18.newObject("Sketcher::SketchObject", "Sketch021")
sketch22.AttachmentSupport = (doc.getObject("XZ_Plane017"), [""])
sketch22.MapMode = "FlatFace"
sketch22.AttachmentOffset = App.Placement(V(0, 0, -70), App.Rotation())
add_polygon(sketch22, [(1010, -3395), (1010, -2095), (875, -2095), (875, -2065), (1010, -2065), (1010, -765), (875, -765), (875, -735), (1010, -735), (1010, 565), (875, 565), (875, 595), (1010, 595), (1010, 1895), (875, 1895), (875, 1925), (1010, 1925), (1010, 5000), (1040, 5000), (1040, 4515), (2060, 4515), (2060, 5000), (2090, 5000), (2090, 4515), (2575, 4515), (2575, 4485), (2090, 4485), (2090, 4000), (2060, 4000), (2060, 4485), (1040, 4485), (1040, 1925), (1175, 1925), (1175, 1895), (1040, 1895), (1040, 595), (3318, 595), (3318, 1253), (6135, 1253), (6135, 5000), (6165, 5000), (6165, -4485), (6650, -4485), (6650, -4515), (6165, -4515), (6165, -5000), (6135, -5000), (6135, -4515), (5650, -4515), (5650, -4485), (6135, -4485), (6135, -2767), (3318, -2767), (3318, -2095), (1040, -2095), (1040, -3395), (1175, -3395), (1175, -3425), (1040, -3425), (1040, -5000), (1010, -5000), (1010, -3425), (875, -3425), (875, -3395)])  # lines 0-63
add_polygon(sketch22, [(3348, 1223), (3348, -742), (6135, -742), (6135, 1223)])  # lines 64-67
add_polygon(sketch22, [(3318, -2065), (3318, 565), (1040, 565), (1040, -735), (1175, -735), (1175, -765), (1040, -765), (1040, -2065)])  # lines 68-75
add_polygon(sketch22, [(3348, -772), (3348, -2737), (6135, -2737), (6135, -772)])  # lines 76-79
sketch22.addConstraint(Sketcher.Constraint("Vertical", 0))
sketch22.addConstraint(Sketcher.Constraint("Horizontal", 1))
sketch22.addConstraint(Sketcher.Constraint("Vertical", 2))
sketch22.addConstraint(Sketcher.Constraint("Horizontal", 3))
sketch22.addConstraint(Sketcher.Constraint("Vertical", 4))
sketch22.addConstraint(Sketcher.Constraint("Horizontal", 5))
sketch22.addConstraint(Sketcher.Constraint("Vertical", 6))
sketch22.addConstraint(Sketcher.Constraint("Horizontal", 7))
sketch22.addConstraint(Sketcher.Constraint("Vertical", 8))
sketch22.addConstraint(Sketcher.Constraint("Horizontal", 9))
sketch22.addConstraint(Sketcher.Constraint("Vertical", 10))
sketch22.addConstraint(Sketcher.Constraint("Horizontal", 11))
sketch22.addConstraint(Sketcher.Constraint("Vertical", 12))
sketch22.addConstraint(Sketcher.Constraint("Horizontal", 13))
sketch22.addConstraint(Sketcher.Constraint("Vertical", 14))
sketch22.addConstraint(Sketcher.Constraint("Horizontal", 15))
sketch22.addConstraint(Sketcher.Constraint("Vertical", 16))
sketch22.addConstraint(Sketcher.Constraint("Horizontal", 17))
sketch22.addConstraint(Sketcher.Constraint("Vertical", 18))
sketch22.addConstraint(Sketcher.Constraint("Horizontal", 19))
sketch22.addConstraint(Sketcher.Constraint("Vertical", 20))
sketch22.addConstraint(Sketcher.Constraint("Horizontal", 21))
sketch22.addConstraint(Sketcher.Constraint("Vertical", 22))
sketch22.addConstraint(Sketcher.Constraint("Horizontal", 23))
sketch22.addConstraint(Sketcher.Constraint("Vertical", 24))
sketch22.addConstraint(Sketcher.Constraint("Horizontal", 25))
sketch22.addConstraint(Sketcher.Constraint("Vertical", 26))
sketch22.addConstraint(Sketcher.Constraint("Horizontal", 27))
sketch22.addConstraint(Sketcher.Constraint("Vertical", 28))
sketch22.addConstraint(Sketcher.Constraint("Horizontal", 29))
sketch22.addConstraint(Sketcher.Constraint("Vertical", 30))
sketch22.addConstraint(Sketcher.Constraint("Horizontal", 31))
sketch22.addConstraint(Sketcher.Constraint("Vertical", 32))
sketch22.addConstraint(Sketcher.Constraint("Horizontal", 33))
sketch22.addConstraint(Sketcher.Constraint("Vertical", 34))
sketch22.addConstraint(Sketcher.Constraint("Horizontal", 35))
sketch22.addConstraint(Sketcher.Constraint("Vertical", 36))
sketch22.addConstraint(Sketcher.Constraint("Horizontal", 37))
sketch22.addConstraint(Sketcher.Constraint("Vertical", 38))
sketch22.addConstraint(Sketcher.Constraint("Horizontal", 39))
sketch22.addConstraint(Sketcher.Constraint("Vertical", 40))
sketch22.addConstraint(Sketcher.Constraint("Horizontal", 41))
sketch22.addConstraint(Sketcher.Constraint("Vertical", 42))
sketch22.addConstraint(Sketcher.Constraint("Horizontal", 43))
sketch22.addConstraint(Sketcher.Constraint("Vertical", 44))
sketch22.addConstraint(Sketcher.Constraint("Horizontal", 45))
sketch22.addConstraint(Sketcher.Constraint("Vertical", 46))
sketch22.addConstraint(Sketcher.Constraint("Horizontal", 47))
sketch22.addConstraint(Sketcher.Constraint("Vertical", 48))
sketch22.addConstraint(Sketcher.Constraint("Horizontal", 49))
sketch22.addConstraint(Sketcher.Constraint("Vertical", 50))
sketch22.addConstraint(Sketcher.Constraint("Horizontal", 51))
sketch22.addConstraint(Sketcher.Constraint("Vertical", 52))
sketch22.addConstraint(Sketcher.Constraint("Horizontal", 53))
sketch22.addConstraint(Sketcher.Constraint("Vertical", 54))
sketch22.addConstraint(Sketcher.Constraint("Horizontal", 55))
sketch22.addConstraint(Sketcher.Constraint("Vertical", 56))
sketch22.addConstraint(Sketcher.Constraint("Horizontal", 57))
sketch22.addConstraint(Sketcher.Constraint("Vertical", 58))
sketch22.addConstraint(Sketcher.Constraint("Horizontal", 59))
sketch22.addConstraint(Sketcher.Constraint("Vertical", 60))
sketch22.addConstraint(Sketcher.Constraint("Horizontal", 61))
sketch22.addConstraint(Sketcher.Constraint("Vertical", 62))
sketch22.addConstraint(Sketcher.Constraint("Horizontal", 63))
sketch22.addConstraint(Sketcher.Constraint("Vertical", 64))
sketch22.addConstraint(Sketcher.Constraint("Horizontal", 65))
sketch22.addConstraint(Sketcher.Constraint("Vertical", 66))
sketch22.addConstraint(Sketcher.Constraint("Horizontal", 67))
sketch22.addConstraint(Sketcher.Constraint("Vertical", 68))
sketch22.addConstraint(Sketcher.Constraint("Horizontal", 69))
sketch22.addConstraint(Sketcher.Constraint("Vertical", 70))
sketch22.addConstraint(Sketcher.Constraint("Horizontal", 71))
sketch22.addConstraint(Sketcher.Constraint("Vertical", 72))
sketch22.addConstraint(Sketcher.Constraint("Horizontal", 73))
sketch22.addConstraint(Sketcher.Constraint("Vertical", 74))
sketch22.addConstraint(Sketcher.Constraint("Horizontal", 75))
sketch22.addConstraint(Sketcher.Constraint("Vertical", 76))
sketch22.addConstraint(Sketcher.Constraint("Horizontal", 77))
sketch22.addConstraint(Sketcher.Constraint("Vertical", 78))
sketch22.addConstraint(Sketcher.Constraint("Horizontal", 79))
sketch22.addConstraint(Sketcher.Constraint("Symmetric", 39, 2, 44, 2, -1))
sketch22.addConstraint(Sketcher.Constraint("Symmetric", 17, 2, 58, 2, -1))
sketch22.addConstraint(Sketcher.Constraint("Horizontal", 17, 2, 20, 2))
sketch22.addConstraint(Sketcher.Constraint("Horizontal", 19, 2, 22, 2))
sketch22.addConstraint(Sketcher.Constraint("Horizontal", 25, 2, 28, 2))
sketch22.addConstraint(Sketcher.Constraint("Horizontal", 15, 2, 30, 2))
sketch22.addConstraint(Sketcher.Constraint("Horizontal", 13, 2, 32, 2))
sketch22.addConstraint(Sketcher.Constraint("Horizontal", 11, 2, 34, 2))
sketch22.addConstraint(Sketcher.Constraint("Horizontal", 21, 2, 38, 2))
sketch22.addConstraint(Sketcher.Constraint("Horizontal", 43, 2, 46, 2))
sketch22.addConstraint(Sketcher.Constraint("Horizontal", 41, 2, 48, 2))
sketch22.addConstraint(Sketcher.Constraint("Horizontal", 1, 2, 52, 2))
sketch22.addConstraint(Sketcher.Constraint("Horizontal", 57, 2, 60, 2))
sketch22.addConstraint(Sketcher.Constraint("Horizontal", 55, 2, 62, 2))
sketch22.addConstraint(Sketcher.Constraint("Horizontal", 9, 2, 68, 2))
sketch22.addConstraint(Sketcher.Constraint("Horizontal", 7, 2, 70, 2))
sketch22.addConstraint(Sketcher.Constraint("Horizontal", 5, 2, 72, 2))
sketch22.addConstraint(Sketcher.Constraint("Horizontal", 3, 2, 74, 2))
sketch22.addConstraint(Sketcher.Constraint("Vertical", 0, 2, 3, 2))
sketch22.addConstraint(Sketcher.Constraint("Vertical", 2, 2, 5, 2))
sketch22.addConstraint(Sketcher.Constraint("Vertical", 4, 2, 7, 2))
sketch22.addConstraint(Sketcher.Constraint("Vertical", 6, 2, 9, 2))
sketch22.addConstraint(Sketcher.Constraint("Vertical", 8, 2, 11, 2))
sketch22.addConstraint(Sketcher.Constraint("Vertical", 10, 2, 13, 2))
sketch22.addConstraint(Sketcher.Constraint("Vertical", 12, 2, 15, 2))
sketch22.addConstraint(Sketcher.Constraint("Vertical", 22, 2, 25, 2))
sketch22.addConstraint(Sketcher.Constraint("Vertical", 20, 2, 27, 2))
sketch22.addConstraint(Sketcher.Constraint("Vertical", 18, 2, 29, 2))
sketch22.addConstraint(Sketcher.Constraint("Vertical", 30, 2, 33, 2))
sketch22.addConstraint(Sketcher.Constraint("Vertical", 38, 2, 45, 2))
sketch22.addConstraint(Sketcher.Constraint("Vertical", 46, 2, 49, 2))
sketch22.addConstraint(Sketcher.Constraint("Vertical", 36, 2, 51, 2))
sketch22.addConstraint(Sketcher.Constraint("Vertical", 34, 2, 53, 2))
sketch22.addConstraint(Sketcher.Constraint("Vertical", 32, 2, 55, 2))
sketch22.addConstraint(Sketcher.Constraint("Vertical", 16, 2, 59, 2))
sketch22.addConstraint(Sketcher.Constraint("Vertical", 14, 2, 61, 2))
sketch22.addConstraint(Sketcher.Constraint("Vertical", 50, 2, 65, 2))
sketch22.addConstraint(Sketcher.Constraint("Vertical", 52, 2, 68, 2))
sketch22.addConstraint(Sketcher.Constraint("Vertical", 58, 2, 69, 2))
sketch22.addConstraint(Sketcher.Constraint("Vertical", 56, 2, 71, 2))
sketch22.addConstraint(Sketcher.Constraint("Vertical", 70, 2, 73, 2))
sketch22.addConstraint(Sketcher.Constraint("Vertical", 67, 2, 76, 2))
sketch22.addConstraint(Sketcher.Constraint("Vertical", 66, 2, 77, 2))
sketch22.addConstraint(Sketcher.Constraint("Equal", 17, 21))
sketch22.addConstraint(Sketcher.Constraint("Equal", 15, 31))
sketch22.addConstraint(Sketcher.Constraint("Equal", 27, 39))
sketch22.addConstraint(Sketcher.Constraint("Equal", 25, 41))
sketch22.addConstraint(Sketcher.Constraint("Equal", 43, 47))
sketch22.addConstraint(Sketcher.Constraint("Equal", 59, 2))
sketch22.addConstraint(Sketcher.Constraint("Equal", 0, 4))
sketch22.addConstraint(Sketcher.Constraint("Equal", 2, 6))
sketch22.addConstraint(Sketcher.Constraint("Equal", 4, 8))
sketch22.addConstraint(Sketcher.Constraint("Equal", 6, 10))
sketch22.addConstraint(Sketcher.Constraint("Equal", 8, 12))
sketch22.addConstraint(Sketcher.Constraint("Equal", 10, 14))
sketch22.addConstraint(Sketcher.Constraint("Equal", 49, 18))
sketch22.addConstraint(Sketcher.Constraint("Equal", 14, 24))
sketch22.addConstraint(Sketcher.Constraint("Equal", 22, 26))
sketch22.addConstraint(Sketcher.Constraint("Equal", 32, 42))
sketch22.addConstraint(Sketcher.Constraint("Equal", 28, 44))
sketch22.addConstraint(Sketcher.Constraint("Equal", 48, 56))
sketch22.addConstraint(Sketcher.Constraint("Equal", 66, 76))
sketch22.addConstraint(Sketcher.Constraint("DistanceX", 1, 2, 1, 1, Q("135 mm")))
sketch22.addConstraint(Sketcher.Constraint("DistanceX", 17, 1, 17, 2, Q("30 mm")))
sketch22.addConstraint(Sketcher.Constraint("DistanceX", 19, 1, 19, 2, Q("1020 mm")))
sketch22.addConstraint(Sketcher.Constraint("DistanceX", 23, 1, 23, 2, Q("485 mm")))
sketch22.addConstraint(Sketcher.Constraint("DistanceX", 35, 1, 35, 2, Q("2278 mm")))
sketch22.addConstraint(Sketcher.Constraint("DistanceX", 37, 1, 37, 2, Q("2817 mm")))
sketch22.addConstraint(Sketcher.Constraint("DistanceX", 65, 1, 65, 2, Q("2787 mm")))
sketch22.addConstraint(Sketcher.Constraint("DistanceY", 0, 1, 0, 2, Q("1300 mm")))
sketch22.addConstraint(Sketcher.Constraint("DistanceY", 16, 1, 16, 2, Q("3075 mm")))
sketch22.addConstraint(Sketcher.Constraint("DistanceY", 36, 1, 36, 2, Q("658 mm")))
sketch22.addConstraint(Sketcher.Constraint("DistanceY", 40, 2, 40, 1, Q("9485 mm")))
sketch22.addConstraint(Sketcher.Constraint("DistanceY", 50, 1, 50, 2, Q("1718 mm")))
sketch22.addConstraint(Sketcher.Constraint("DistanceY", 64, 2, 64, 1, Q("1965 mm")))
sketch22.addConstraint(Sketcher.Constraint("DistanceX", -1, 1, 0, 2, Q("1010 mm")))
sketch22.addConstraint(Sketcher.Constraint("DistanceY", 64, 2, -1, 1, Q("742 mm")))
sketch22.addConstraint(Sketcher.Constraint("DistanceY", 76, 2, -1, 1, Q("2737 mm")))
pad18 = body18.newObject("PartDesign::Pad", "Pad017")
pad18.Profile = sketch22
pad18.Length = 1
pad18.Reversed = True

doc.recompute()
